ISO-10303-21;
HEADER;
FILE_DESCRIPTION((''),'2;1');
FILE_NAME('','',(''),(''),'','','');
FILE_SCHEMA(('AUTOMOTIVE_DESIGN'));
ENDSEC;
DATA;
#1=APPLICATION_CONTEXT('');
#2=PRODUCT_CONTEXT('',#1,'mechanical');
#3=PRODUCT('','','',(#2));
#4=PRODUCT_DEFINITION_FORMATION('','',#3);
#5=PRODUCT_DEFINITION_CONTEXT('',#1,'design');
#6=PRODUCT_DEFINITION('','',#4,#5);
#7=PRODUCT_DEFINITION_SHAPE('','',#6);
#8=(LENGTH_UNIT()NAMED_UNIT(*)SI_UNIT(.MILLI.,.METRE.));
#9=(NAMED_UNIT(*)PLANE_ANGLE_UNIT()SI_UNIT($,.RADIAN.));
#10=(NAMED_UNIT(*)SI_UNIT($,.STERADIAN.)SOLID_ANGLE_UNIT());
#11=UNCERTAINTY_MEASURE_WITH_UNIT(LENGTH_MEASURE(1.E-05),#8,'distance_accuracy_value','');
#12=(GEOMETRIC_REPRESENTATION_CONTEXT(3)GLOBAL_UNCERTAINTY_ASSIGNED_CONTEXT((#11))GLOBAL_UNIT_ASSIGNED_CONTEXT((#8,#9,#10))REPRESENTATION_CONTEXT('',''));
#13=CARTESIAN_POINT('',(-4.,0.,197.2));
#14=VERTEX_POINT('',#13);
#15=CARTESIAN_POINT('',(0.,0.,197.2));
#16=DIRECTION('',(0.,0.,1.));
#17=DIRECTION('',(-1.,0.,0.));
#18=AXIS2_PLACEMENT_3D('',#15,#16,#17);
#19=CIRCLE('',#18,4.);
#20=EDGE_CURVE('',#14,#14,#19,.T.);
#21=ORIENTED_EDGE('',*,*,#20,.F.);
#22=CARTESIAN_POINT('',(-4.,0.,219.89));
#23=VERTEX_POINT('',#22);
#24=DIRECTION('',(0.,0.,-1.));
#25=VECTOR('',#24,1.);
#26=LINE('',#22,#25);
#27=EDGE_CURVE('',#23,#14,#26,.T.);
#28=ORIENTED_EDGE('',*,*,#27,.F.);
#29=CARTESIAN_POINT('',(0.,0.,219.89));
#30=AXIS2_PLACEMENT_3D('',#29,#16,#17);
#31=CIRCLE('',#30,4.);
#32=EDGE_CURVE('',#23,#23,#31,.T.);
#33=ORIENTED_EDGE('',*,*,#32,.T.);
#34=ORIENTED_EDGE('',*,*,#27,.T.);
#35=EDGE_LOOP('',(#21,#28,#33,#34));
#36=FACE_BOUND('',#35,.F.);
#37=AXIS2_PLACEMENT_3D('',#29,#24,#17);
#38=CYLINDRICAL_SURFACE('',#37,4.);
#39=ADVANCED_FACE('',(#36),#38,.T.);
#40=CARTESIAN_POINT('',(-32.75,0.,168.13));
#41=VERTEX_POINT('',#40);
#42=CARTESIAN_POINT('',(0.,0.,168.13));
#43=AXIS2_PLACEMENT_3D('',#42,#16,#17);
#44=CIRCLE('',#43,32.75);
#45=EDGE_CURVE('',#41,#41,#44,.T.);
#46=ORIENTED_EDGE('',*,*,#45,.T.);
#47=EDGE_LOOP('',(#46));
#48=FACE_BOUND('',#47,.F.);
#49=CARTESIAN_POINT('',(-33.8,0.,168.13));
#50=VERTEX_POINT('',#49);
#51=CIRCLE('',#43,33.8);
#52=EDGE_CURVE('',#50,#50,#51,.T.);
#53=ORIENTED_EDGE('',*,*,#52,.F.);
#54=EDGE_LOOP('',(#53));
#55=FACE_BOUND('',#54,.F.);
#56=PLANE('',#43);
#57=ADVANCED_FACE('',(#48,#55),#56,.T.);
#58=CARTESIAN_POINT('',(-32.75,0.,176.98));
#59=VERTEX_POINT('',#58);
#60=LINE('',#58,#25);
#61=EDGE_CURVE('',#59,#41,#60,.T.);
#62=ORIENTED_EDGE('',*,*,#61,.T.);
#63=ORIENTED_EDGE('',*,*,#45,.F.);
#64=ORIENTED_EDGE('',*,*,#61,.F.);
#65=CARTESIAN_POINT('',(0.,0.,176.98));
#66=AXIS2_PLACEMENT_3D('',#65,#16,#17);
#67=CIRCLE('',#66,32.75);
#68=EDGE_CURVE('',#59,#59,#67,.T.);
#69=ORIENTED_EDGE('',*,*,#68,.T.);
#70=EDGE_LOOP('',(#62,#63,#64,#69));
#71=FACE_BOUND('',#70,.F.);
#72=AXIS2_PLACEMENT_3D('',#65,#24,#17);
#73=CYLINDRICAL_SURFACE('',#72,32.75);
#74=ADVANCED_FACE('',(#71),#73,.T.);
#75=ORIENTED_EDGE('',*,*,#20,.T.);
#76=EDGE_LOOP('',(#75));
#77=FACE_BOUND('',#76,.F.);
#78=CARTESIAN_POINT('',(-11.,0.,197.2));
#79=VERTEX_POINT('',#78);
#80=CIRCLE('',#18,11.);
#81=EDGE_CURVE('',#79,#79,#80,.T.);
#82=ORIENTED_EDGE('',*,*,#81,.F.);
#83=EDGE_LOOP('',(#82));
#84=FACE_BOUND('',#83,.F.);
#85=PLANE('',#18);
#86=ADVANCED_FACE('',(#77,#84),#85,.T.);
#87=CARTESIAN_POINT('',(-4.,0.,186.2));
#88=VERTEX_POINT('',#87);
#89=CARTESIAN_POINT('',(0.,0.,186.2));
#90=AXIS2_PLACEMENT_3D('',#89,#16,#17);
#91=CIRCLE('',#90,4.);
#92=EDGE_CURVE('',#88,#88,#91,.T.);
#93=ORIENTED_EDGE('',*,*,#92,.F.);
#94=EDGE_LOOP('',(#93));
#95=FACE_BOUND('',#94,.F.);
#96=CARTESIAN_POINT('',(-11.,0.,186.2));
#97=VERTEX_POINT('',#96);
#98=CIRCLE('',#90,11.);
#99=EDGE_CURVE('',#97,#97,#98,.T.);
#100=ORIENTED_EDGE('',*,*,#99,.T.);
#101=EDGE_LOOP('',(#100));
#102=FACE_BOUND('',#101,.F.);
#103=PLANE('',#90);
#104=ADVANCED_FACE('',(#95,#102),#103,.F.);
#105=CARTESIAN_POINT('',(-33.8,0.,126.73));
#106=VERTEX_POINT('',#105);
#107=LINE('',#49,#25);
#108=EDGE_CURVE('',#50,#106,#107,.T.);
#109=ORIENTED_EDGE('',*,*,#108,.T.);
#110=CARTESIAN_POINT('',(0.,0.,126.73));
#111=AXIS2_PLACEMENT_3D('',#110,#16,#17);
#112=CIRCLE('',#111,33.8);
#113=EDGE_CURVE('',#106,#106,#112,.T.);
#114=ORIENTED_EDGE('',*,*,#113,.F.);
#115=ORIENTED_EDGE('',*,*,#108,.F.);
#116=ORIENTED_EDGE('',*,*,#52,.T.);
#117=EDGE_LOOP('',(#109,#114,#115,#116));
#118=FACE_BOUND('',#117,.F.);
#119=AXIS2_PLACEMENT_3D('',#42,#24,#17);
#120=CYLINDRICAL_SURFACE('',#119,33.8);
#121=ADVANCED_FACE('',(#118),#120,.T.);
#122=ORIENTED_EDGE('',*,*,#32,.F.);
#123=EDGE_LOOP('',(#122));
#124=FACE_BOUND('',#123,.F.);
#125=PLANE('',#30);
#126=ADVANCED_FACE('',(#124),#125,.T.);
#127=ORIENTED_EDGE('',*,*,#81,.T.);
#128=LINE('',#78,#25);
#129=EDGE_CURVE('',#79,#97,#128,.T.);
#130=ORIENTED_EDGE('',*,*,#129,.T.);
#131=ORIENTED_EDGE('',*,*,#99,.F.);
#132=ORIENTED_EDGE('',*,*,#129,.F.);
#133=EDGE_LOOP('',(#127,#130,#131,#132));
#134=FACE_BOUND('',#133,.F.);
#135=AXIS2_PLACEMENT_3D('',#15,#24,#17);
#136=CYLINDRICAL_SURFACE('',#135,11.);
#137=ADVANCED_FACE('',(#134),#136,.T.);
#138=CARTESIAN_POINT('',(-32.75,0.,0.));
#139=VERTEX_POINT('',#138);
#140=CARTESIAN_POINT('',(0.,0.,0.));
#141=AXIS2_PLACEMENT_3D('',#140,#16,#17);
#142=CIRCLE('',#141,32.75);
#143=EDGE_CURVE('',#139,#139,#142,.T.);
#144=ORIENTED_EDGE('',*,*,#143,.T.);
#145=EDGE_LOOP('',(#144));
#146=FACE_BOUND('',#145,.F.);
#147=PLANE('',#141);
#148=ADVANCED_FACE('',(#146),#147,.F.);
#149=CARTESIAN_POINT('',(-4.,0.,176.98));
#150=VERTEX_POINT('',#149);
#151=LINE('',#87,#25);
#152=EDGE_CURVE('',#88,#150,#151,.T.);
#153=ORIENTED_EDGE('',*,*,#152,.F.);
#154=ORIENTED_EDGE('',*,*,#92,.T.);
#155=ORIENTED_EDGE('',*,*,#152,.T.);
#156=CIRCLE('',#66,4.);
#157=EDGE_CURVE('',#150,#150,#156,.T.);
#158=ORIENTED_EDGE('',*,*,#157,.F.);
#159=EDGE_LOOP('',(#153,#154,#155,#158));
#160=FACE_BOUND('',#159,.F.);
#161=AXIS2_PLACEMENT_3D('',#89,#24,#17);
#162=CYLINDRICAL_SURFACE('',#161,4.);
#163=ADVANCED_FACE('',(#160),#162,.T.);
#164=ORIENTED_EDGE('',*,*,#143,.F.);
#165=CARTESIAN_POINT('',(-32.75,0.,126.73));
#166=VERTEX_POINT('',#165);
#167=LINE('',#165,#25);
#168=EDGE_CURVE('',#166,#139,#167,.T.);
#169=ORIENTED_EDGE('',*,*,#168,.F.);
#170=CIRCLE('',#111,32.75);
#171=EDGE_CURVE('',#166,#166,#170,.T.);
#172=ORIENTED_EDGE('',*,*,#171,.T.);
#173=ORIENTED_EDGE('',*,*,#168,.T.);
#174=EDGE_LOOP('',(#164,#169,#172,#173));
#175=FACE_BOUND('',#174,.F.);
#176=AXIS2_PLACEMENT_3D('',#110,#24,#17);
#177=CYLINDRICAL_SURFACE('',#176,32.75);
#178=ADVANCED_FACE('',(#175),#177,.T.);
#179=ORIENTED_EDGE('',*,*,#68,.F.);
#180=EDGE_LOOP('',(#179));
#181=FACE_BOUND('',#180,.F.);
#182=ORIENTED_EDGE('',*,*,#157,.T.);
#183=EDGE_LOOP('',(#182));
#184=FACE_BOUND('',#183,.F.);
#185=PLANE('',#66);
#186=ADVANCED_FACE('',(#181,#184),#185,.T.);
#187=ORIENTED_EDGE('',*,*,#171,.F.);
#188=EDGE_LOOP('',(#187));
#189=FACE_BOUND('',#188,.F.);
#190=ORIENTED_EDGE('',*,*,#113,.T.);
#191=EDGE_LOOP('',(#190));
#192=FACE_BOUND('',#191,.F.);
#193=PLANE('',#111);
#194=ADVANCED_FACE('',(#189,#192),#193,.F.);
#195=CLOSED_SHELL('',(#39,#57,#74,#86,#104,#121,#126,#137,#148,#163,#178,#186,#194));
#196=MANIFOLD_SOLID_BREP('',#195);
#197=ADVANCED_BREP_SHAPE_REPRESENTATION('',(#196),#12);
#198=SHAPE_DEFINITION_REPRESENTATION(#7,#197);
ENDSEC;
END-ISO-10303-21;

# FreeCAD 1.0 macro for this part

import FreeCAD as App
import Part
import Sketcher

V = App.Vector
Q = App.Units.Quantity

doc = App.newDocument("Part")
body = doc.addObject("PartDesign::Body", "Body")

sketch1 = body.newObject("Sketcher::SketchObject", "Sketch")
sketch1.AttachmentSupport = (doc.getObject("XZ_Plane"), [""])
sketch1.MapMode = "FlatFace"
sketch1.addGeometry([
    Part.LineSegment(V(-32.75, 176.98, 0), V(-32.75, 168.13, 0)),
    Part.LineSegment(V(-32.75, 168.13, 0), V(-33.8, 168.13, 0)),
    Part.LineSegment(V(-33.8, 168.13, 0), V(-33.8, 126.73, 0)),
    Part.LineSegment(V(-33.8, 126.73, 0), V(-32.75, 126.73, 0)),
    Part.LineSegment(V(-32.75, 126.73, 0), V(-32.75, 0, 0)),
    Part.LineSegment(V(-32.75, 0, 0), V(0, 0, 0)),
    Part.LineSegment(V(0, 0, 0), V(0, 219.89, 0)),
    Part.LineSegment(V(0, 219.89, 0), V(-4, 219.89, 0)),
    Part.LineSegment(V(-4, 219.89, 0), V(-4, 197.2, 0)),
    Part.LineSegment(V(-4, 197.2, 0), V(-11, 197.2, 0)),
    Part.LineSegment(V(-11, 197.2, 0), V(-11, 186.2, 0)),
    Part.LineSegment(V(-11, 186.2, 0), V(-4, 186.2, 0)),
    Part.LineSegment(V(-4, 186.2, 0), V(-4, 176.98, 0)),
    Part.LineSegment(V(-4, 176.98, 0), V(-32.75, 176.98, 0)),
], False)
sketch1.addConstraint([
    Sketcher.Constraint("Coincident", 0, 2, 1, 1),
    Sketcher.Constraint("Coincident", 1, 2, 2, 1),
    Sketcher.Constraint("Coincident", 2, 2, 3, 1),
    Sketcher.Constraint("Coincident", 3, 2, 4, 1),
    Sketcher.Constraint("Coincident", 4, 2, 5, 1),
    Sketcher.Constraint("Coincident", 5, 2, 6, 1),
    Sketcher.Constraint("Coincident", 6, 2, 7, 1),
    Sketcher.Constraint("Coincident", 7, 2, 8, 1),
    Sketcher.Constraint("Coincident", 8, 2, 9, 1),
    Sketcher.Constraint("Coincident", 9, 2, 10, 1),
    Sketcher.Constraint("Coincident", 10, 2, 11, 1),
    Sketcher.Constraint("Coincident", 11, 2, 12, 1),
    Sketcher.Constraint("Coincident", 12, 2, 13, 1),
    Sketcher.Constraint("Coincident", 13, 2, 0, 1),
    Sketcher.Constraint("Vertical", 0),
    Sketcher.Constraint("Horizontal", 1),
    Sketcher.Constraint("Vertical", 2),
    Sketcher.Constraint("Horizontal", 3),
    Sketcher.Constraint("Vertical", 4),
    Sketcher.Constraint("Horizontal", 5),
    Sketcher.Constraint("Vertical", 6),
    Sketcher.Constraint("Horizontal", 7),
    Sketcher.Constraint("Vertical", 8),
    Sketcher.Constraint("Horizontal", 9),
    Sketcher.Constraint("Vertical", 10),
    Sketcher.Constraint("Horizontal", 11),
    Sketcher.Constraint("Vertical", 12),
    Sketcher.Constraint("Horizontal", 13),
    Sketcher.Constraint("Coincident", 5, 2, -1, 1),
    Sketcher.Constraint("Vertical", 0, 2, 3, 2),
    Sketcher.Constraint("Vertical", 8, 2, 11, 2),
    Sketcher.Constraint("DistanceX", 7, 2, 7, 1, Q("4 mm")),
    Sketcher.Constraint("DistanceX", 9, 2, 9, 1, Q("7 mm")),
    Sketcher.Constraint("DistanceY", 10, 2, 10, 1, Q("11 mm")),
    Sketcher.Constraint("DistanceY", 2, 2, 2, 1, Q("41.4 mm")),
    Sketcher.Constraint("DistanceX", 1, 2, 1, 1, Q("1.05 mm")),
    Sketcher.Constraint("DistanceX", 5, 1, 5, 2, Q("32.75 mm")),
    Sketcher.Constraint("DistanceY", 0, 2, 0, 1, Q("8.85 mm")),
    Sketcher.Constraint("DistanceY", 4, 2, 4, 1, Q("126.73 mm")),
    Sketcher.Constraint("DistanceY", 6, 1, 6, 2, Q("219.89 mm")),
    Sketcher.Constraint("DistanceY", 8, 2, 8, 1, Q("22.69 mm")),
])
revolution = body.newObject("PartDesign::Revolution", "Revolution")
revolution.Profile = sketch1
revolution.ReferenceAxis = (sketch1, ["V_Axis"])
revolution.Angle = 360

doc.recompute()
